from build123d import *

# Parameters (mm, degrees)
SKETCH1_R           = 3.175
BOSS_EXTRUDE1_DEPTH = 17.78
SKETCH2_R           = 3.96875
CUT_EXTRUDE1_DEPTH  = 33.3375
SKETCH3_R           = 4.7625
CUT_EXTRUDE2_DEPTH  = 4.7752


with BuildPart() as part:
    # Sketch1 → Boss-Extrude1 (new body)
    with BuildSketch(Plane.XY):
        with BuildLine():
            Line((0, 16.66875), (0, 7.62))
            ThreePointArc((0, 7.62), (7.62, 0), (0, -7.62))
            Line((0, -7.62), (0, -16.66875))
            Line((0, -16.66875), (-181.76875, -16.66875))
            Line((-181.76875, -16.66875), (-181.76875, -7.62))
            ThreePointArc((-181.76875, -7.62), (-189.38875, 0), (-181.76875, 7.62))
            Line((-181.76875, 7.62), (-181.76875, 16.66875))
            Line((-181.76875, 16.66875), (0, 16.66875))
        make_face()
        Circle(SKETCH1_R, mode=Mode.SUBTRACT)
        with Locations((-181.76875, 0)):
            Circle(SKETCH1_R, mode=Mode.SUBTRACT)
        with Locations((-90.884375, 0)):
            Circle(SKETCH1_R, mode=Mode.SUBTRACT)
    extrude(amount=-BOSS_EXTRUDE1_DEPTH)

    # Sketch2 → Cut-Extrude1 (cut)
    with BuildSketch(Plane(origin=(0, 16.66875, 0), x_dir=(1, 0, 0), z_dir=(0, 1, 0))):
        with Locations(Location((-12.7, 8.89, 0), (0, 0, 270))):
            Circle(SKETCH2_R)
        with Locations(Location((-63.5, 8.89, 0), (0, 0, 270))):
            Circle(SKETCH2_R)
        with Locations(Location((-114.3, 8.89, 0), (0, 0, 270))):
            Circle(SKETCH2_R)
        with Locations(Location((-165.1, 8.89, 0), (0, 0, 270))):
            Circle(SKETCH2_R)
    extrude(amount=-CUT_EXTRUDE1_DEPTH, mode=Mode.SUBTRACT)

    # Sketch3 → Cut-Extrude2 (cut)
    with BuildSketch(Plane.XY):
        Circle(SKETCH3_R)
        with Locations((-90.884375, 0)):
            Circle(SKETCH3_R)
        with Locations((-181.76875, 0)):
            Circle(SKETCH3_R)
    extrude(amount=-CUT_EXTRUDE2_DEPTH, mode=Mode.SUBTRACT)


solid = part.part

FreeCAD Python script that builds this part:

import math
import FreeCAD as App
import Part
import Sketcher

V = App.Vector
Q = App.Units.Quantity

doc = App.newDocument("Part")
body = doc.addObject("PartDesign::Body", "Body")

sketch1 = body.newObject("Sketcher::SketchObject", "Sketch")
sketch1.AttachmentSupport = (doc.getObject("XY_Plane"), [""])
sketch1.MapMode = "FlatFace"
sketch1.addGeometry(Part.LineSegment(V(0, 7.62, 0), V(0, 16.66875, 0)), False)
sketch1.addGeometry(Part.LineSegment(V(0, 16.66875, 0), V(-181.76875, 16.66875, 0)), False)
sketch1.addGeometry(Part.LineSegment(V(-181.76875, 16.66875, 0), V(-181.76875, 7.62, 0)), False)
sketch1.addGeometry(Part.ArcOfCircle(Part.Circle(V(-181.76875, 0, 0), V(0, 0, 1), 7.62), math.radians(90), math.radians(270)), False)
sketch1.addGeometry(Part.LineSegment(V(-181.76875, -7.62, 0), V(-181.76875, -16.66875, 0)), False)
sketch1.addGeometry(Part.LineSegment(V(-181.76875, -16.66875, 0), V(0, -16.66875, 0)), False)
sketch1.addGeometry(Part.LineSegment(V(0, -16.66875, 0), V(0, -7.62, 0)), False)
sketch1.addGeometry(Part.ArcOfCircle(Part.Circle(V(0, 0, 0), V(0, 0, 1), 7.62), math.radians(-90), math.radians(90)), False)
sketch1.addGeometry(Part.Circle(V(0, 0, 0), V(0, 0, 1), 3.175), False)
sketch1.addGeometry(Part.Circle(V(-90.884375, 0, 0), V(0, 0, 1), 3.175), False)
sketch1.addGeometry(Part.Circle(V(-181.76875, 0, 0), V(0, 0, 1), 3.175), False)
sketch1.addConstraint(Sketcher.Constraint("Coincident", 0, 2, 1, 1))
sketch1.addConstraint(Sketcher.Constraint("Coincident", 1, 2, 2, 1))
sketch1.addConstraint(Sketcher.Constraint("Coincident", 2, 2, 3, 1))
sketch1.addConstraint(Sketcher.Constraint("Coincident", 3, 2, 4, 1))
sketch1.addConstraint(Sketcher.Constraint("Coincident", 4, 2, 5, 1))
sketch1.addConstraint(Sketcher.Constraint("Coincident", 5, 2, 6, 1))
sketch1.addConstraint(Sketcher.Constraint("Coincident", 6, 2, 7, 1))
sketch1.addConstraint(Sketcher.Constraint("Coincident", 7, 2, 0, 1))
sketch1.addConstraint(Sketcher.Constraint("Vertical", 0))
sketch1.addConstraint(Sketcher.Constraint("Horizontal", 1))
sketch1.addConstraint(Sketcher.Constraint("Vertical", 2))
sketch1.addConstraint(Sketcher.Constraint("Vertical", 4))
sketch1.addConstraint(Sketcher.Constraint("Horizontal", 5))
sketch1.addConstraint(Sketcher.Constraint("Vertical", 6))
sketch1.addConstraint(Sketcher.Constraint("Coincident", 7, 3, -1, 1))
sketch1.addConstraint(Sketcher.Constraint("Coincident", 8, 3, -1, 1))
sketch1.addConstraint(Sketcher.Constraint("Coincident", 10, 3, 3, 3))
sketch1.addConstraint(Sketcher.Constraint("Equal", 3, 7))
sketch1.addConstraint(Sketcher.Constraint("Equal", 8, 9))
sketch1.addConstraint(Sketcher.Constraint("Equal", 9, 10))
sketch1.addConstraint(Sketcher.Constraint("Symmetric", 0, 2, 5, 2, -1, 1))
sketch1.addConstraint(Sketcher.Constraint("Symmetric", 2, 2, 3, 2, -1))
sketch1.addConstraint(Sketcher.Constraint("PointOnObject", 9, 3, -1))
sketch1.addConstraint(Sketcher.Constraint("PointOnObject", 0, 2, -2))
sketch1.addConstraint(Sketcher.Constraint("Vertical", 10, 3, 1, 2))
sketch1.addConstraint(Sketcher.Constraint("Radius", 3, Q("0.3 in")))
sketch1.addConstraint(Sketcher.Constraint("Diameter", 8, Q("0.25 in")))
sketch1.addConstraint(Sketcher.Constraint("DistanceX", 1, 2, 1, 1, Q("7.15625 in")))
sketch1.addConstraint(Sketcher.Constraint("DistanceX", 9, 3, -1, 1, Q("3.578125 in")))
sketch1.addConstraint(Sketcher.Constraint("DistanceY", -1, 1, 0, 2, Q("0.65625 in")))
pad1 = body.newObject("PartDesign::Pad", "Pad")
pad1.Profile = sketch1
pad1.Length = Q("0.7 in")
pad1.Reversed = True

sketch2 = body.newObject("Sketcher::SketchObject", "Sketch001")
sketch2.AttachmentSupport = (doc.getObject("XZ_Plane"), [""])
sketch2.MapMode = "FlatFace"
sketch2.AttachmentOffset = App.Placement(V(0, 0, -0.65625 * 25.4), App.Rotation())
sketch2.addGeometry(Part.Circle(V(-12.7, -8.89, 0), V(0, 0, 1), 3.96875), False)
sketch2.addGeometry(Part.Circle(V(-63.5, -8.89, 0), V(0, 0, 1), 3.96875), False)
sketch2.addGeometry(Part.Circle(V(-114.3, -8.89, 0), V(0, 0, 1), 3.96875), False)
sketch2.addGeometry(Part.Circle(V(-165.1, -8.89, 0), V(0, 0, 1), 3.96875), False)
sketch2.addConstraint(Sketcher.Constraint("Equal", 0, 1))
sketch2.addConstraint(Sketcher.Constraint("Equal", 1, 2))
sketch2.addConstraint(Sketcher.Constraint("Equal", 2, 3))
sketch2.addConstraint(Sketcher.Constraint("Horizontal", 0, 3, 1, 3))
sketch2.addConstraint(Sketcher.Constraint("Horizontal", 1, 3, 2, 3))
sketch2.addConstraint(Sketcher.Constraint("Horizontal", 2, 3, 3, 3))
sketch2.addConstraint(Sketcher.Constraint("Diameter", 0, Q("0.3125 in")))
sketch2.addConstraint(Sketcher.Constraint("DistanceX", 1, 3, 0, 3, Q("2 in")))
sketch2.addConstraint(Sketcher.Constraint("DistanceX", 2, 3, 1, 3, Q("2 in")))
sketch2.addConstraint(Sketcher.Constraint("DistanceX", 3, 3, 2, 3, Q("2 in")))
sketch2.addConstraint(Sketcher.Constraint("DistanceX", 0, 3, -1, 1, Q("0.5 in")))
sketch2.addConstraint(Sketcher.Constraint("DistanceY", 0, 3, -1, 1, Q("0.35 in")))
pocket1 = body.newObject("PartDesign::Pocket", "Pocket")
pocket1.Profile = sketch2
pocket1.Length = Q("1.3125 in")
pocket1.Reversed = True

sketch3 = body.newObject("Sketcher::SketchObject", "Sketch002")
sketch3.AttachmentSupport = (doc.getObject("XY_Plane"), [""])
sketch3.MapMode = "FlatFace"
sketch3.addGeometry(Part.Circle(V(0, 0, 0), V(0, 0, 1), 4.7625), False)
sketch3.addGeometry(Part.Circle(V(-90.884375, 0, 0), V(0, 0, 1), 4.7625), False)
sketch3.addGeometry(Part.Circle(V(-181.76875, 0, 0), V(0, 0, 1), 4.7625), False)
sketch3.addConstraint(Sketcher.Constraint("Coincident", 0, 3, -1, 1))
sketch3.addConstraint(Sketcher.Constraint("Equal", 0, 1))
sketch3.addConstraint(Sketcher.Constraint("Equal", 1, 2))
sketch3.addConstraint(Sketcher.Constraint("PointOnObject", 1, 3, -1))
sketch3.addConstraint(Sketcher.Constraint("PointOnObject", 2, 3, -1))
sketch3.addConstraint(Sketcher.Constraint("Diameter", 0, Q("0.375 in")))
sketch3.addConstraint(Sketcher.Constraint("DistanceX", 1, 3, -1, 1, Q("3.578125 in")))
sketch3.addConstraint(Sketcher.Constraint("DistanceX", 2, 3, -1, 1, Q("7.15625 in")))
pocket2 = body.newObject("PartDesign::Pocket", "Pocket001")
pocket2.Profile = sketch3
pocket2.Length = Q("0.188 in")

doc.recompute()
